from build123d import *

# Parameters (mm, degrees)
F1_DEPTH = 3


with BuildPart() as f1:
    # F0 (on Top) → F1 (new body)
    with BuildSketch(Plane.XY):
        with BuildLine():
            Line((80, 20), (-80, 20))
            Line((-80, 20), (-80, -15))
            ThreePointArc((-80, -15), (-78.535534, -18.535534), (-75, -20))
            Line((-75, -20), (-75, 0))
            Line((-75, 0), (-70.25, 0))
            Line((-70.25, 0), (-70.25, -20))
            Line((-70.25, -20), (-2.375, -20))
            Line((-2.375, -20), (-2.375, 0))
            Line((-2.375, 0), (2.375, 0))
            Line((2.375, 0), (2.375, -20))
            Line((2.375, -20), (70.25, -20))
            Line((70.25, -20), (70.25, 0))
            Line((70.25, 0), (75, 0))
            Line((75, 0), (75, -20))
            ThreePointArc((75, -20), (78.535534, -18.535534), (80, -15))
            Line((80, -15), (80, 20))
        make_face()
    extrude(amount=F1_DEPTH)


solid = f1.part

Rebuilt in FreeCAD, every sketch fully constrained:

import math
import FreeCAD as App
import Part
import Sketcher
from FreeCAD import Vector

doc = App.newDocument("Part")
body = doc.addObject("PartDesign::Body", "Body")

# Sketch on XY plane
sketch1 = doc.addObject("Sketcher::SketchObject", "Sketch")
body.addObject(sketch1)
sketch1.AttachmentSupport = (doc.XY_Plane, [""])
sketch1.MapMode = "FlatFace"
sketch1.addGeometry([
    Part.LineSegment(Vector(80, 20, 0), Vector(-80, 20, 0)),  # 0
    Part.LineSegment(Vector(-80, 20, 0), Vector(-80, -15, 0)),  # 1
    Part.ArcOfCircle(Part.Circle(Vector(-75, -15, 0), Vector(0, 0, 1), 5), math.radians(180), math.radians(270)),  # 2
    Part.LineSegment(Vector(-75, -20, 0), Vector(-75, 0, 0)),  # 3
    Part.LineSegment(Vector(-75, 0, 0), Vector(-70.2, 0, 0)),  # 4
    Part.LineSegment(Vector(-70.2, 0, 0), Vector(-70.2, -20, 0)),  # 5
    Part.LineSegment(Vector(-70.2, -20, 0), Vector(-2.4, -20, 0)),  # 6
    Part.LineSegment(Vector(-2.4, -20, 0), Vector(-2.4, 0, 0)),  # 7
    Part.LineSegment(Vector(-2.4, 0, 0), Vector(2.4, 0, 0)),  # 8
    Part.LineSegment(Vector(2.4, 0, 0), Vector(2.4, -20, 0)),  # 9
    Part.LineSegment(Vector(2.4, -20, 0), Vector(70.2, -20, 0)),  # 10
    Part.LineSegment(Vector(70.2, -20, 0), Vector(70.2, 0, 0)),  # 11
    Part.LineSegment(Vector(70.2, 0, 0), Vector(75, 0, 0)),  # 12
    Part.LineSegment(Vector(75, 0, 0), Vector(75, -20, 0)),  # 13
    Part.ArcOfCircle(Part.Circle(Vector(75, -15, 0), Vector(0, 0, 1), 5), math.radians(-90), math.radians(0)),  # 14
    Part.LineSegment(Vector(80, -15, 0), Vector(80, 20, 0)),  # 15
], False)
sketch1.addConstraint([
    Sketcher.Constraint("Coincident", 0, 2, 1, 1),
    Sketcher.Constraint("Tangent", 1, 2, 2, 1),
    Sketcher.Constraint("Coincident", 2, 2, 3, 1),
    Sketcher.Constraint("Coincident", 3, 2, 4, 1),
    Sketcher.Constraint("Coincident", 4, 2, 5, 1),
    Sketcher.Constraint("Coincident", 5, 2, 6, 1),
    Sketcher.Constraint("Coincident", 6, 2, 7, 1),
    Sketcher.Constraint("Coincident", 7, 2, 8, 1),
    Sketcher.Constraint("Coincident", 8, 2, 9, 1),
    Sketcher.Constraint("Coincident", 9, 2, 10, 1),
    Sketcher.Constraint("Coincident", 10, 2, 11, 1),
    Sketcher.Constraint("Coincident", 11, 2, 12, 1),
    Sketcher.Constraint("Coincident", 12, 2, 13, 1),
    Sketcher.Constraint("Coincident", 13, 2, 14, 1),
    Sketcher.Constraint("Tangent", 14, 2, 15, 1),
    Sketcher.Constraint("Coincident", 15, 2, 0, 1),
    Sketcher.Constraint("Horizontal", 0),
    Sketcher.Constraint("Vertical", 1),
    Sketcher.Constraint("Vertical", 3),
    Sketcher.Constraint("Horizontal", 4),
    Sketcher.Constraint("Vertical", 5),
    Sketcher.Constraint("Horizontal", 6),
    Sketcher.Constraint("Vertical", 7),
    Sketcher.Constraint("Horizontal", 8),
    Sketcher.Constraint("Vertical", 9),
    Sketcher.Constraint("Horizontal", 10),
    Sketcher.Constraint("Vertical", 11),
    Sketcher.Constraint("Horizontal", 12),
    Sketcher.Constraint("Vertical", 13),
    Sketcher.Constraint("Vertical", 15),
    Sketcher.Constraint("Equal", 2, 14),
    Sketcher.Constraint("Symmetric", 7, 2, 8, 2, -1, 1),
    Sketcher.Constraint("Symmetric", 4, 2, 11, 2, -1, 1),
    Sketcher.Constraint("Symmetric", 2, 3, 14, 3, -2),
    Sketcher.Constraint("Symmetric", 3, 2, 12, 2, -2),
    Sketcher.Constraint("Horizontal", 2, 2, 5, 2),
    Sketcher.Constraint("Horizontal", 6, 2, 9, 2),
    Sketcher.Constraint("Vertical", 14, 3, 12, 2),
    Sketcher.Constraint("Equal", 4, 8),
    Sketcher.Constraint("Radius", 2, 5.0),
    Sketcher.Constraint("DistanceX", 0, 2, 0, 1, 160.0),
    Sketcher.Constraint("DistanceY", 1, 2, 1, 1, 35.0),
    Sketcher.Constraint("DistanceY", 3, 1, 3, 2, 20.0),
    Sketcher.Constraint("DistanceX", 4, 1, 4, 2, 4.75),
])
pad1 = doc.addObject("PartDesign::Pad", "Pad")
body.addObject(pad1)
pad1.Profile = sketch1
pad1.Length = 3

doc.recompute()
